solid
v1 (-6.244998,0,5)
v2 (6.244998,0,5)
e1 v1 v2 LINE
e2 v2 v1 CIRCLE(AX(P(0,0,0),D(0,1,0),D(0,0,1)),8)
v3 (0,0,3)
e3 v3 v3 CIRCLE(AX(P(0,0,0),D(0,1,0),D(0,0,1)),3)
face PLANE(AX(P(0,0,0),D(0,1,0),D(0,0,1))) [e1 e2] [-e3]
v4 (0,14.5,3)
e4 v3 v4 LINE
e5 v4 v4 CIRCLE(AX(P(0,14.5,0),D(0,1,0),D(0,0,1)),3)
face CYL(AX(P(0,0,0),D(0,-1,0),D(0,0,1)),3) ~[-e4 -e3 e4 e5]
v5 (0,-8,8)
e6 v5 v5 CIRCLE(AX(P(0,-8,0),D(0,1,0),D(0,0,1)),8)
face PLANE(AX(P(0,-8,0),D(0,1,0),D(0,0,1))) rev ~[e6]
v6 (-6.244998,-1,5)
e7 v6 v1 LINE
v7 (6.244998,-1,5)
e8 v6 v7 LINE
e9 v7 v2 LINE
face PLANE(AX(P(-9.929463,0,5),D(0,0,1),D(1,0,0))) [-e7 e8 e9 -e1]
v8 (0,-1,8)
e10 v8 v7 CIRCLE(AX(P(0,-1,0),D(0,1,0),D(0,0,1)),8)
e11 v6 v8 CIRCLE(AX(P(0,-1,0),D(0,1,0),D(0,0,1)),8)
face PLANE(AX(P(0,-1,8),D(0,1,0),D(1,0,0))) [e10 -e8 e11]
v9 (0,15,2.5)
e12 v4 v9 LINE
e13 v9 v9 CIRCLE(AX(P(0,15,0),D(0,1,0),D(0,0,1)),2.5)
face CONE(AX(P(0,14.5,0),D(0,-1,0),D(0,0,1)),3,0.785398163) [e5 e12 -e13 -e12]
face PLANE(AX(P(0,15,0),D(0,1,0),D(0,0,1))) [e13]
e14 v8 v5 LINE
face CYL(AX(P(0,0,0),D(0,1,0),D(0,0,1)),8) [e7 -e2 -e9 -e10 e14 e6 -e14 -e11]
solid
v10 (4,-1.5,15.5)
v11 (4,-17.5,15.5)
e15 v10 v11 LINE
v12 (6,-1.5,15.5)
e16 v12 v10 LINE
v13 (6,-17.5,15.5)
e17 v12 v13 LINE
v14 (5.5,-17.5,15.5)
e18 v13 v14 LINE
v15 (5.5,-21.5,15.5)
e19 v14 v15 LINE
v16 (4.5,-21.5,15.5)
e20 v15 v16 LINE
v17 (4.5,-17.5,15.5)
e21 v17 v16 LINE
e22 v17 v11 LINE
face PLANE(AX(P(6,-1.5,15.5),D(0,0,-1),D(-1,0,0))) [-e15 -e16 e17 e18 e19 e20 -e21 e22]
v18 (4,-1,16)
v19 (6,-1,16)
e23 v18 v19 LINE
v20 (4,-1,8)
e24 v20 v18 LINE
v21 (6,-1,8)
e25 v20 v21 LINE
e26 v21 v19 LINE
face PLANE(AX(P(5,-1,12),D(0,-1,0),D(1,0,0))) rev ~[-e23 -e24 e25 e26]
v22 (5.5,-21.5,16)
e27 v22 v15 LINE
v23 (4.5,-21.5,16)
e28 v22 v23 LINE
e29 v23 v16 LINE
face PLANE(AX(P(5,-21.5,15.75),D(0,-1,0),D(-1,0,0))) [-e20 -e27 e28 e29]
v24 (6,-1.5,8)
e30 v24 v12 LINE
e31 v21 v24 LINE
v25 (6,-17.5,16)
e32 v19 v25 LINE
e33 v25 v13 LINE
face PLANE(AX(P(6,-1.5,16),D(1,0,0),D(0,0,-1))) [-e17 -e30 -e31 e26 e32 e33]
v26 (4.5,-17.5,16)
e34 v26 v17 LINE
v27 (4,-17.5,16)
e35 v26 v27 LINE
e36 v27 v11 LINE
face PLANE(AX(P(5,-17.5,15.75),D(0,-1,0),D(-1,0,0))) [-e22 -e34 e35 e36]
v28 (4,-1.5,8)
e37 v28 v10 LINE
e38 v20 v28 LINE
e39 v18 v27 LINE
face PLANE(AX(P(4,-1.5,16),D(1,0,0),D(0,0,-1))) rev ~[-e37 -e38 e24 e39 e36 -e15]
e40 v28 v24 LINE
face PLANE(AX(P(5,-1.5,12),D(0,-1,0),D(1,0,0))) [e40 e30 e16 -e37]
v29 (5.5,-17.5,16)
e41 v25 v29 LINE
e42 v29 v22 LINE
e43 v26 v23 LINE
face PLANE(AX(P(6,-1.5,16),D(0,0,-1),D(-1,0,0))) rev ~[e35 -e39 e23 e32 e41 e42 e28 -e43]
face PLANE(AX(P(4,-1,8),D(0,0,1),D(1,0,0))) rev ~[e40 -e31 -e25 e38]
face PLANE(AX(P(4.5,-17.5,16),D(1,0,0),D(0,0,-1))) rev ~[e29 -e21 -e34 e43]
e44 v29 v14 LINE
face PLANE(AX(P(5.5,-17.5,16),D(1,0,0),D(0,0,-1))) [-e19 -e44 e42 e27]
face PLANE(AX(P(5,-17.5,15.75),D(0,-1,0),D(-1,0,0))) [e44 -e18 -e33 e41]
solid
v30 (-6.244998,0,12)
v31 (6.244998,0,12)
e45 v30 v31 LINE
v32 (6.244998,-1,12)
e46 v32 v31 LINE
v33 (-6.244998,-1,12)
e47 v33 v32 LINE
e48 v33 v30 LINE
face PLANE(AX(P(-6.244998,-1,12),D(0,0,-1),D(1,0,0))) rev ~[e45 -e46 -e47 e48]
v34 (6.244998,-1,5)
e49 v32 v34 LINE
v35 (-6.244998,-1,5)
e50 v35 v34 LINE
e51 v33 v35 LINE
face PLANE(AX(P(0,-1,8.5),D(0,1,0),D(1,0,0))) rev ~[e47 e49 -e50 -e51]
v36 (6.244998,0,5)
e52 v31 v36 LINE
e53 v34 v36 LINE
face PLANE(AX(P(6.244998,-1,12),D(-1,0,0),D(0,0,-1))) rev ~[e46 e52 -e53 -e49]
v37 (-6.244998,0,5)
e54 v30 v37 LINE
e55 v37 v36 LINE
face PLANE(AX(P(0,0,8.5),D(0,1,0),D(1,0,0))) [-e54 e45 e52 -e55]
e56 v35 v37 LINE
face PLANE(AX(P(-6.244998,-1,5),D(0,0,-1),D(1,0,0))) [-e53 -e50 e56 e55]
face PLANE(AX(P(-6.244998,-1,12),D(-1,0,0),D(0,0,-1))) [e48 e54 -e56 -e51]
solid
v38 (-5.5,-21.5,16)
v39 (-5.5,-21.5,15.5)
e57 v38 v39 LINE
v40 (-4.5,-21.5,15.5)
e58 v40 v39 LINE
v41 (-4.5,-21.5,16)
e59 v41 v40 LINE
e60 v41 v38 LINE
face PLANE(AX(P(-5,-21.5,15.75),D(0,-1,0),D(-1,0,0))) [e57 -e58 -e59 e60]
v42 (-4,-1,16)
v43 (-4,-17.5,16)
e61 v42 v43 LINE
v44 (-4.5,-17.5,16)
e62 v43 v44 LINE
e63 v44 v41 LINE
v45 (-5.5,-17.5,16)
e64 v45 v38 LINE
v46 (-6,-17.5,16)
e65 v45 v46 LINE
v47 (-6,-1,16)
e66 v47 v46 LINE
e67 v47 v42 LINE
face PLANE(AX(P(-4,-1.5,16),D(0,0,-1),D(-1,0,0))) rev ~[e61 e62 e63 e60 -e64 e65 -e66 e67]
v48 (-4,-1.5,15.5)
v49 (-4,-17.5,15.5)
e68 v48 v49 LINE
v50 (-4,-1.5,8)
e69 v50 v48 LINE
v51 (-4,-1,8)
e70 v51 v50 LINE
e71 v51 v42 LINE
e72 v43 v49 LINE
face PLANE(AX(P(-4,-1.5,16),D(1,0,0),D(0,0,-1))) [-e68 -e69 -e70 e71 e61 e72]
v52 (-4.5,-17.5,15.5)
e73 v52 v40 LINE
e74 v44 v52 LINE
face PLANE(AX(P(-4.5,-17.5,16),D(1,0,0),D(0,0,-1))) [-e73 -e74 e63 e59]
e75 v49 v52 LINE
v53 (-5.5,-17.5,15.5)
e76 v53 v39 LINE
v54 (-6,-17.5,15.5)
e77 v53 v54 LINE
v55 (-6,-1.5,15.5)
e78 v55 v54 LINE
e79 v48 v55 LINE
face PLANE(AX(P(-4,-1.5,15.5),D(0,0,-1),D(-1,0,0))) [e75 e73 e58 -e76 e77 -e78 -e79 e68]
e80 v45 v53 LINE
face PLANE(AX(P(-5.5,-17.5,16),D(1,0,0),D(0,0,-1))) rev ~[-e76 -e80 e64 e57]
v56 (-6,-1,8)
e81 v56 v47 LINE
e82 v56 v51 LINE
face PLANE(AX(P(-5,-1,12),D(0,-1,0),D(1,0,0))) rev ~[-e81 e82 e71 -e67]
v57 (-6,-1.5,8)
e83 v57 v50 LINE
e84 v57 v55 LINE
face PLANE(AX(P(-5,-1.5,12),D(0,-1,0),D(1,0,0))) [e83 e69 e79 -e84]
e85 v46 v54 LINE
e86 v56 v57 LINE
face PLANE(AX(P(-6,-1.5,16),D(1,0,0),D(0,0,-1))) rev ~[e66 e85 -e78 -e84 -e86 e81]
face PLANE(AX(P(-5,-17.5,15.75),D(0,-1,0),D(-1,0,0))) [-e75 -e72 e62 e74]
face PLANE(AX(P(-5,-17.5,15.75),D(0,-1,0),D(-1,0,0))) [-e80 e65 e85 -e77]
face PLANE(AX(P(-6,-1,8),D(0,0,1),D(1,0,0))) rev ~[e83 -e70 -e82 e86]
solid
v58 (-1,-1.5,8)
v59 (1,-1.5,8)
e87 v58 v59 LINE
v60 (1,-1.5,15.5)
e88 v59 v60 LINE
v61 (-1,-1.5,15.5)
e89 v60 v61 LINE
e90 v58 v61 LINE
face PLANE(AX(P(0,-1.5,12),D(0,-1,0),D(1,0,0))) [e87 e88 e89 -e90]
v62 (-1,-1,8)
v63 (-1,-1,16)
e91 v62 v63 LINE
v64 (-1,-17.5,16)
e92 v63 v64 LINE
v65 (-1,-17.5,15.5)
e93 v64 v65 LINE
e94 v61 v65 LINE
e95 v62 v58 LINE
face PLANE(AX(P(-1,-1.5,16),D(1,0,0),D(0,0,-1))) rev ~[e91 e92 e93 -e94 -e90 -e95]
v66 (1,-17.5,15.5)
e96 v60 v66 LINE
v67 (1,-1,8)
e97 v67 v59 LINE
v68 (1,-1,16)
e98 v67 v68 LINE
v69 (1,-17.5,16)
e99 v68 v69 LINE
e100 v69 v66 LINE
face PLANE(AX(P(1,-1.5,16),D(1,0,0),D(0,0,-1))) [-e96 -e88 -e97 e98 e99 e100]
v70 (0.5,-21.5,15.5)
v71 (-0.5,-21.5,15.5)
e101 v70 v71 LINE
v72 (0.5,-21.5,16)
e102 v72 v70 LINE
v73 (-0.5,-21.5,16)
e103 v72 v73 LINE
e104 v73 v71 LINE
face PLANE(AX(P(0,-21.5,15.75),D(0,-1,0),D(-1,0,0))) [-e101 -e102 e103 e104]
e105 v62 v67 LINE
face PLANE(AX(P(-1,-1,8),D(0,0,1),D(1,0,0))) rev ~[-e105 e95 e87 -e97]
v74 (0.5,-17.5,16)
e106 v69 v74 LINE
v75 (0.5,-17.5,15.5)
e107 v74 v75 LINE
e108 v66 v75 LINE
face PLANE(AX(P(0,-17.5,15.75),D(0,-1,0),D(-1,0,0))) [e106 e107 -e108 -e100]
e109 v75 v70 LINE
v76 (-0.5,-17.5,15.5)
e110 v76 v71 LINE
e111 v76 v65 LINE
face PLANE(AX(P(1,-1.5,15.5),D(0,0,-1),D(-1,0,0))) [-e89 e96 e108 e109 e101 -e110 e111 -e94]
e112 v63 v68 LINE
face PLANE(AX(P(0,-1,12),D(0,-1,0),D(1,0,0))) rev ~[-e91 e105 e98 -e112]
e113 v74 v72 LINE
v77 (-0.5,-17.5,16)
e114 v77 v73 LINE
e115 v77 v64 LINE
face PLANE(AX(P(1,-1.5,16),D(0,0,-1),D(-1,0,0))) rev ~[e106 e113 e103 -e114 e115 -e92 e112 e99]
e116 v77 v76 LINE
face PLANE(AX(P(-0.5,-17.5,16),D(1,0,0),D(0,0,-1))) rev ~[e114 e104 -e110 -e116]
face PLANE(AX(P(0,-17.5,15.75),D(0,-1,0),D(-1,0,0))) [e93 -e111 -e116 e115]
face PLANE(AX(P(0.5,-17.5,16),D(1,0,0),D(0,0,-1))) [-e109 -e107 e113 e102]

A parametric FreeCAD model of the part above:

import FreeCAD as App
import Part
import Sketcher

V = App.Vector


def edges_at(feature, points):
    """Names of the edges that pass closest to the given points."""
    edges = feature.Shape.Edges
    near = lambda p: min(range(len(edges)), key=lambda i: edges[i].distToShape(Part.Vertex(*p))[0])
    return sorted({f"Edge{near(p) + 1}" for p in points})

doc = App.newDocument("Part")
body = doc.addObject("PartDesign::Body", "Body")

sketch1 = body.newObject("Sketcher::SketchObject", "Sketch")
sketch1.AttachmentSupport = (doc.getObject("XZ_Plane"), [""])
sketch1.MapMode = "FlatFace"
sketch1.addGeometry(Part.Circle(V(0, 0, 0), V(0, 0, 1), 8), False)
sketch1.addConstraint([
    Sketcher.Constraint("Coincident", 0, 3, -1, 1),
    Sketcher.Constraint("Diameter", 0, 16.0),
])
pad1 = body.newObject("PartDesign::Pad", "Pad")
pad1.Profile = sketch1
pad1.Length = 8

sketch2 = body.newObject("Sketcher::SketchObject", "Sketch001")
sketch2.AttachmentSupport = (doc.getObject("XZ_Plane"), [""])
sketch2.MapMode = "FlatFace"
sketch2.addGeometry(Part.Circle(V(0, 0, 0), V(0, 0, 1), 3), False)
sketch2.addConstraint([
    Sketcher.Constraint("Coincident", 0, 3, -1, 1),
    Sketcher.Constraint("Diameter", 0, 6.0),
])
pad2 = body.newObject("PartDesign::Pad", "Pad001")
pad2.Profile = sketch2
pad2.Length = 15
pad2.Reversed = True
doc.recompute()

chamfer = body.newObject("PartDesign::Chamfer", "Chamfer")
chamfer.Base = (pad2, edges_at(pad2, [(0, 15, -3)]))
chamfer.Size = 0.5

sketch3 = body.newObject("Sketcher::SketchObject", "Sketch002")
sketch3.AttachmentSupport = (doc.getObject("XZ_Plane"), [""])
sketch3.MapMode = "FlatFace"
sketch3.addGeometry([
    Part.LineSegment(V(-10, 5, 0), V(-10, 11, 0)),
    Part.LineSegment(V(-10, 11, 0), V(10, 11, 0)),
    Part.LineSegment(V(10, 11, 0), V(10, 5, 0)),
    Part.LineSegment(V(10, 5, 0), V(-10, 5, 0)),
], False)
sketch3.addConstraint([
    Sketcher.Constraint("Coincident", 0, 2, 1, 1),
    Sketcher.Constraint("Coincident", 1, 2, 2, 1),
    Sketcher.Constraint("Coincident", 2, 2, 3, 1),
    Sketcher.Constraint("Coincident", 3, 2, 0, 1),
    Sketcher.Constraint("Vertical", 0),
    Sketcher.Constraint("Horizontal", 1),
    Sketcher.Constraint("Vertical", 2),
    Sketcher.Constraint("Horizontal", 3),
    Sketcher.Constraint("DistanceY", 0, 1, 0, 2, 6.0),
    Sketcher.Constraint("DistanceY", -1, 1, 0, 2, 11.0),
    Sketcher.Constraint("DistanceX", 1, 1, 1, 2, 19.858926),
    Sketcher.Constraint("DistanceX", 0, 2, -1, 1, 9.929463),
])
pocket1 = body.newObject("PartDesign::Pocket", "Pocket")
pocket1.Profile = sketch3
pocket1.Length = 1
pocket1.Reversed = True
body2 = doc.addObject("PartDesign::Body", "Body001")

sketch4 = body2.newObject("Sketcher::SketchObject", "Sketch003")
sketch4.AttachmentSupport = (doc.getObject("XZ_Plane001"), [""])
sketch4.MapMode = "FlatFace"
sketch4.AttachmentOffset = App.Placement(V(0, 0, 1), App.Rotation())
sketch4.addGeometry([
    Part.LineSegment(V(-6, 5, 0), V(-6, 12, 0)),
    Part.LineSegment(V(-6, 12, 0), V(6, 12, 0)),
    Part.LineSegment(V(6, 12, 0), V(6, 5, 0)),
    Part.LineSegment(V(6, 5, 0), V(-6, 5, 0)),
], False)
sketch4.addConstraint([
    Sketcher.Constraint("Coincident", 0, 2, 1, 1),
    Sketcher.Constraint("Coincident", 1, 2, 2, 1),
    Sketcher.Constraint("Coincident", 2, 2, 3, 1),
    Sketcher.Constraint("Coincident", 3, 2, 0, 1),
    Sketcher.Constraint("Vertical", 0),
    Sketcher.Constraint("Horizontal", 1),
    Sketcher.Constraint("Vertical", 2),
    Sketcher.Constraint("Horizontal", 3),
    Sketcher.Constraint("DistanceY", 0, 1, 0, 2, 7.0),
    Sketcher.Constraint("DistanceY", -1, 1, 0, 2, 12.0),
    Sketcher.Constraint("DistanceX", 1, 1, 1, 2, 12.489996),
    Sketcher.Constraint("DistanceX", 0, 2, -1, 1, 6.244998),
])
pad3 = body2.newObject("PartDesign::Pad", "Pad002")
pad3.Profile = sketch4
pad3.Length = 1
pad3.Reversed = True
body3 = doc.addObject("PartDesign::Body", "Body002")

sketch5 = body3.newObject("Sketcher::SketchObject", "Sketch004")
sketch5.AttachmentSupport = (doc.getObject("XZ_Plane002"), [""])
sketch5.MapMode = "FlatFace"
sketch5.AttachmentOffset = App.Placement(V(0, 0, 1), App.Rotation())
sketch5.addGeometry([
    Part.LineSegment(V(-1, 16, 0), V(-1, 8, 0)),
    Part.LineSegment(V(-1, 8, 0), V(1, 8, 0)),
    Part.LineSegment(V(1, 8, 0), V(1, 16, 0)),
    Part.LineSegment(V(1, 16, 0), V(-1, 16, 0)),
], False)
sketch5.addConstraint([
    Sketcher.Constraint("Coincident", 0, 2, 1, 1),
    Sketcher.Constraint("Coincident", 1, 2, 2, 1),
    Sketcher.Constraint("Coincident", 2, 2, 3, 1),
    Sketcher.Constraint("Coincident", 3, 2, 0, 1),
    Sketcher.Constraint("Vertical", 0),
    Sketcher.Constraint("Horizontal", 1),
    Sketcher.Constraint("Vertical", 2),
    Sketcher.Constraint("Horizontal", 3),
    Sketcher.Constraint("DistanceX", 1, 1, 1, 2, 2.0),
    Sketcher.Constraint("DistanceY", 0, 2, 0, 1, 8.0),
    Sketcher.Constraint("DistanceX", 0, 2, -1, 1, 1.0),
    Sketcher.Constraint("DistanceY", -1, 1, 0, 2, 8.0),
])
pad4 = body3.newObject("PartDesign::Pad", "Pad003")
pad4.Profile = sketch5
pad4.Length = 0.5
body4 = doc.addObject("PartDesign::Body", "Body003")

sketch6 = body4.newObject("Sketcher::SketchObject", "Sketch005")
sketch6.AttachmentSupport = (doc.getObject("XZ_Plane003"), [""])
sketch6.MapMode = "FlatFace"
sketch6.AttachmentOffset = App.Placement(V(0, 0, 1), App.Rotation())
sketch6.addGeometry([
    Part.LineSegment(V(-6, 16, 0), V(-6, 8, 0)),
    Part.LineSegment(V(-6, 8, 0), V(-4, 8, 0)),
    Part.LineSegment(V(-4, 8, 0), V(-4, 16, 0)),
    Part.LineSegment(V(-4, 16, 0), V(-6, 16, 0)),
], False)
sketch6.addConstraint([
    Sketcher.Constraint("Coincident", 0, 2, 1, 1),
    Sketcher.Constraint("Coincident", 1, 2, 2, 1),
    Sketcher.Constraint("Coincident", 2, 2, 3, 1),
    Sketcher.Constraint("Coincident", 3, 2, 0, 1),
    Sketcher.Constraint("Vertical", 0),
    Sketcher.Constraint("Horizontal", 1),
    Sketcher.Constraint("Vertical", 2),
    Sketcher.Constraint("Horizontal", 3),
    Sketcher.Constraint("DistanceX", 1, 1, 1, 2, 2.0),
    Sketcher.Constraint("DistanceY", 0, 2, 0, 1, 8.0),
    Sketcher.Constraint("DistanceX", 0, 2, -1, 1, 6.0),
    Sketcher.Constraint("DistanceY", -1, 1, 0, 2, 8.0),
])
pad5 = body4.newObject("PartDesign::Pad", "Pad004")
pad5.Profile = sketch6
pad5.Length = 0.5
body5 = doc.addObject("PartDesign::Body", "Body004")

sketch7 = body5.newObject("Sketcher::SketchObject", "Sketch006")
sketch7.AttachmentSupport = (doc.getObject("XZ_Plane004"), [""])
sketch7.MapMode = "FlatFace"
sketch7.AttachmentOffset = App.Placement(V(0, 0, 1), App.Rotation())
sketch7.addGeometry([
    Part.LineSegment(V(4, 16, 0), V(4, 8, 0)),
    Part.LineSegment(V(4, 8, 0), V(6, 8, 0)),
    Part.LineSegment(V(6, 8, 0), V(6, 16, 0)),
    Part.LineSegment(V(6, 16, 0), V(4, 16, 0)),
], False)
sketch7.addConstraint([
    Sketcher.Constraint("Coincident", 0, 2, 1, 1),
    Sketcher.Constraint("Coincident", 1, 2, 2, 1),
    Sketcher.Constraint("Coincident", 2, 2, 3, 1),
    Sketcher.Constraint("Coincident", 3, 2, 0, 1),
    Sketcher.Constraint("Vertical", 0),
    Sketcher.Constraint("Horizontal", 1),
    Sketcher.Constraint("Vertical", 2),
    Sketcher.Constraint("Horizontal", 3),
    Sketcher.Constraint("DistanceX", 1, 1, 1, 2, 2.0),
    Sketcher.Constraint("DistanceY", 0, 2, 0, 1, 8.0),
    Sketcher.Constraint("DistanceX", -1, 1, 0, 2, 4.0),
    Sketcher.Constraint("DistanceY", -1, 1, 0, 2, 8.0),
])
pad6 = body5.newObject("PartDesign::Pad", "Pad005")
pad6.Profile = sketch7
pad6.Length = 0.5
body3.AllowCompound = True
doc.recompute()

boolean = body3.newObject("PartDesign::Boolean", "Boolean")
boolean.Type = "Fuse"
boolean.addObjects([body4])
doc.recompute()

boolean2 = body3.newObject("PartDesign::Boolean", "Boolean001")
boolean2.Type = "Fuse"
boolean2.addObjects([body5])

sketch8 = body3.newObject("Sketcher::SketchObject", "Sketch007")
sketch8.AttachmentSupport = (doc.getObject("XZ_Plane002"), [""])
sketch8.MapMode = "FlatFace"
sketch8.AttachmentOffset = App.Placement(V(0, 0, 1.5), App.Rotation())
sketch8.addGeometry([
    Part.LineSegment(V(-4, 15.5, 0), V(-4, 16, 0)),
    Part.LineSegment(V(-4, 16, 0), V(-6, 16, 0)),
    Part.LineSegment(V(-6, 16, 0), V(-6, 15.5, 0)),
    Part.LineSegment(V(-6, 15.5, 0), V(-4, 15.5, 0)),
    Part.LineSegment(V(1, 15.5, 0), V(1, 16, 0)),
    Part.LineSegment(V(1, 16, 0), V(-1, 16, 0)),
    Part.LineSegment(V(-1, 16, 0), V(-1, 15.5, 0)),
    Part.LineSegment(V(-1, 15.5, 0), V(1, 15.5, 0)),
    Part.LineSegment(V(6, 15.5, 0), V(6, 16, 0)),
    Part.LineSegment(V(6, 16, 0), V(4, 16, 0)),
    Part.LineSegment(V(4, 16, 0), V(4, 15.5, 0)),
    Part.LineSegment(V(4, 15.5, 0), V(6, 15.5, 0)),
], False)
sketch8.addConstraint([
    Sketcher.Constraint("Coincident", 0, 2, 1, 1),
    Sketcher.Constraint("Coincident", 1, 2, 2, 1),
    Sketcher.Constraint("Coincident", 2, 2, 3, 1),
    Sketcher.Constraint("Coincident", 3, 2, 0, 1),
    Sketcher.Constraint("Coincident", 4, 2, 5, 1),
    Sketcher.Constraint("Coincident", 5, 2, 6, 1),
    Sketcher.Constraint("Coincident", 6, 2, 7, 1),
    Sketcher.Constraint("Coincident", 7, 2, 4, 1),
    Sketcher.Constraint("Coincident", 8, 2, 9, 1),
    Sketcher.Constraint("Coincident", 9, 2, 10, 1),
    Sketcher.Constraint("Coincident", 10, 2, 11, 1),
    Sketcher.Constraint("Coincident", 11, 2, 8, 1),
    Sketcher.Constraint("Vertical", 0),
    Sketcher.Constraint("Horizontal", 1),
    Sketcher.Constraint("Vertical", 2),
    Sketcher.Constraint("Horizontal", 3),
    Sketcher.Constraint("Vertical", 4),
    Sketcher.Constraint("Horizontal", 5),
    Sketcher.Constraint("Vertical", 6),
    Sketcher.Constraint("Horizontal", 7),
    Sketcher.Constraint("Vertical", 8),
    Sketcher.Constraint("Horizontal", 9),
    Sketcher.Constraint("Vertical", 10),
    Sketcher.Constraint("Horizontal", 11),
    Sketcher.Constraint("Symmetric", 1, 2, 8, 2, -2),
    Sketcher.Constraint("Symmetric", 3, 2, 10, 2, -2),
    Sketcher.Constraint("Horizontal", 1, 2, 4, 2),
    Sketcher.Constraint("Horizontal", 3, 2, 6, 2),
    Sketcher.Constraint("Equal", 3, 5),
    Sketcher.Constraint("DistanceX", 1, 2, 1, 1, 2.0),
    Sketcher.Constraint("DistanceY", 0, 1, 0, 2, 0.5),
    Sketcher.Constraint("DistanceX", 0, 2, -1, 1, 4.0),
    Sketcher.Constraint("DistanceY", -1, 1, 0, 2, 16.0),
    Sketcher.Constraint("DistanceX", -1, 1, 4, 2, 1.0),
])
pad7 = body3.newObject("PartDesign::Pad", "Pad006")
pad7.Profile = sketch8
pad7.Length = 16

sketch9 = body3.newObject("Sketcher::SketchObject", "Sketch008")
sketch9.AttachmentSupport = (doc.getObject("XZ_Plane002"), [""])
sketch9.MapMode = "FlatFace"
sketch9.AttachmentOffset = App.Placement(V(0, 0, 17.5), App.Rotation())
sketch9.addGeometry([
    Part.LineSegment(V(0.5, 15.5, 0), V(0.5, 16, 0)),
    Part.LineSegment(V(0.5, 16, 0), V(-0.5, 16, 0)),
    Part.LineSegment(V(-0.5, 16, 0), V(-0.5, 15.5, 0)),
    Part.LineSegment(V(-0.5, 15.5, 0), V(0.5, 15.5, 0)),
    Part.LineSegment(V(-4.5, 15.5, 0), V(-4.5, 16, 0)),
    Part.LineSegment(V(-4.5, 16, 0), V(-5.5, 16, 0)),
    Part.LineSegment(V(-5.5, 16, 0), V(-5.5, 15.5, 0)),
    Part.LineSegment(V(-5.5, 15.5, 0), V(-4.5, 15.5, 0)),
    Part.LineSegment(V(5.5, 15.5, 0), V(5.5, 16, 0)),
    Part.LineSegment(V(5.5, 16, 0), V(4.5, 16, 0)),
    Part.LineSegment(V(4.5, 16, 0), V(4.5, 15.5, 0)),
    Part.LineSegment(V(4.5, 15.5, 0), V(5.5, 15.5, 0)),
], False)
sketch9.addConstraint([
    Sketcher.Constraint("Coincident", 0, 2, 1, 1),
    Sketcher.Constraint("Coincident", 1, 2, 2, 1),
    Sketcher.Constraint("Coincident", 2, 2, 3, 1),
    Sketcher.Constraint("Coincident", 3, 2, 0, 1),
    Sketcher.Constraint("Coincident", 4, 2, 5, 1),
    Sketcher.Constraint("Coincident", 5, 2, 6, 1),
    Sketcher.Constraint("Coincident", 6, 2, 7, 1),
    Sketcher.Constraint("Coincident", 7, 2, 4, 1),
    Sketcher.Constraint("Coincident", 8, 2, 9, 1),
    Sketcher.Constraint("Coincident", 9, 2, 10, 1),
    Sketcher.Constraint("Coincident", 10, 2, 11, 1),
    Sketcher.Constraint("Coincident", 11, 2, 8, 1),
    Sketcher.Constraint("Vertical", 0),
    Sketcher.Constraint("Horizontal", 1),
    Sketcher.Constraint("Vertical", 2),
    Sketcher.Constraint("Horizontal", 3),
    Sketcher.Constraint("Vertical", 4),
    Sketcher.Constraint("Horizontal", 5),
    Sketcher.Constraint("Vertical", 6),
    Sketcher.Constraint("Horizontal", 7),
    Sketcher.Constraint("Vertical", 8),
    Sketcher.Constraint("Horizontal", 9),
    Sketcher.Constraint("Vertical", 10),
    Sketcher.Constraint("Horizontal", 11),
    Sketcher.Constraint("Symmetric", 5, 2, 8, 2, -2),
    Sketcher.Constraint("Symmetric", 7, 2, 10, 2, -2),
    Sketcher.Constraint("Horizontal", 1, 2, 4, 2),
    Sketcher.Constraint("Horizontal", 3, 2, 6, 2),
    Sketcher.Constraint("Equal", 3, 5),
    Sketcher.Constraint("DistanceX", 1, 2, 1, 1, 1.0),
    Sketcher.Constraint("DistanceY", 0, 1, 0, 2, 0.5),
    Sketcher.Constraint("DistanceY", -1, 1, 0, 2, 16.0),
    Sketcher.Constraint("DistanceX", 4, 2, 1, 2, 4.0),
    Sketcher.Constraint("DistanceX", 0, 2, 8, 2, 5.0),
])
pad8 = body3.newObject("PartDesign::Pad", "Pad007")
pad8.Profile = sketch9
pad8.Length = 4

doc.recompute()
